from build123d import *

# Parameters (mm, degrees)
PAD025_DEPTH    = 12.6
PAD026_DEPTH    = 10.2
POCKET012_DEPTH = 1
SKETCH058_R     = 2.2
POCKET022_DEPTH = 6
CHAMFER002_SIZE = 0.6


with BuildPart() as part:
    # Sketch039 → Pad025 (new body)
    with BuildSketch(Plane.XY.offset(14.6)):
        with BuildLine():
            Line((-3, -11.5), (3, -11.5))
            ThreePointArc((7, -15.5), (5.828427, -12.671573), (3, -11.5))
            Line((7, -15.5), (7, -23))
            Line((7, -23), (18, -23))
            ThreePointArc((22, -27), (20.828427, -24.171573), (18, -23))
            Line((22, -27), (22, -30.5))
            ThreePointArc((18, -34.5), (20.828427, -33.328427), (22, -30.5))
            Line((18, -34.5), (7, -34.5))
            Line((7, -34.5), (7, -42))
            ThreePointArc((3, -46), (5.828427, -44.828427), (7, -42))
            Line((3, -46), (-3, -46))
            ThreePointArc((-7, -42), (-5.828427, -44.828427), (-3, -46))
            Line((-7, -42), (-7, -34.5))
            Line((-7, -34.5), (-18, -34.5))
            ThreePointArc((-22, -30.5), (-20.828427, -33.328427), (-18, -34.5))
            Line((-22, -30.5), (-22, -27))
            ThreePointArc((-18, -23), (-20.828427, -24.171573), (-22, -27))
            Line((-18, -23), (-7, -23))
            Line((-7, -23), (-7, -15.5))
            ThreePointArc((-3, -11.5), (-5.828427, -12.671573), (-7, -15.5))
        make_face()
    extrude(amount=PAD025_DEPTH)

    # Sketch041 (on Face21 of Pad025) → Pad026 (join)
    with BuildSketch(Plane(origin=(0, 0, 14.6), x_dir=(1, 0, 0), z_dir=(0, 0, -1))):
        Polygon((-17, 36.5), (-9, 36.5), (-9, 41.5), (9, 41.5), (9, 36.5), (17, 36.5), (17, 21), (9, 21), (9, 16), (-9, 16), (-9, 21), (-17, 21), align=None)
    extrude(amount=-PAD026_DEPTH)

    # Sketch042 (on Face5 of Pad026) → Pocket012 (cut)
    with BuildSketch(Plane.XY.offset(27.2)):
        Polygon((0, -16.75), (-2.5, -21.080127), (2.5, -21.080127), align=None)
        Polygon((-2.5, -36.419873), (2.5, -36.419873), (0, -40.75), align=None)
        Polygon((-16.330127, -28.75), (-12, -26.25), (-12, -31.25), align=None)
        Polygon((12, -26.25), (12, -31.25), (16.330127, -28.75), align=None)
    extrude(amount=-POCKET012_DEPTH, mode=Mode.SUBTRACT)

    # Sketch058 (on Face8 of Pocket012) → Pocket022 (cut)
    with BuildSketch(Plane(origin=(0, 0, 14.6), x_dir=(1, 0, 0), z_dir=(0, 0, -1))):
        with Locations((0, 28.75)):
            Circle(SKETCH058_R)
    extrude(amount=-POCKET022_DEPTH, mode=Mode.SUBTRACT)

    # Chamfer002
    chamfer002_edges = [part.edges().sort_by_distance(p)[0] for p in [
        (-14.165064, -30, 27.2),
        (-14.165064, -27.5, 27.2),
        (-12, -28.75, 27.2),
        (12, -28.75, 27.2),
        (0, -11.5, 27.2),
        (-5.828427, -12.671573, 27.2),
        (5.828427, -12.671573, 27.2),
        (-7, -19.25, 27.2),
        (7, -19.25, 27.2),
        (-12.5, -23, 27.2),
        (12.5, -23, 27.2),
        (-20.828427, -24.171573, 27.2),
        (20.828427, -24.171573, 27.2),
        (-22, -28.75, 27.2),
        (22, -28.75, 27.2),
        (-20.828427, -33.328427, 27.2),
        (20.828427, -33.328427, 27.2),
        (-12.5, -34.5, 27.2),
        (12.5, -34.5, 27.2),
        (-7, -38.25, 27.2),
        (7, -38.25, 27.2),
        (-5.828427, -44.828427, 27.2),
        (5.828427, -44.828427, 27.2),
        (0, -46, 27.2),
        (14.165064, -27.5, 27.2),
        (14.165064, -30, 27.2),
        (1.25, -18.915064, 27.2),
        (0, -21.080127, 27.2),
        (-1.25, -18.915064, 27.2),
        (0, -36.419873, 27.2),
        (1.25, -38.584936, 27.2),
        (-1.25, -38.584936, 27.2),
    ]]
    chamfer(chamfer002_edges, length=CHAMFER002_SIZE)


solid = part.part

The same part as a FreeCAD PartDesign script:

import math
import FreeCAD as App
import Part
import Sketcher
from FreeCAD import Vector
Q = App.Units.Quantity


def edges_at(feature, points):
    """Names of the edges that pass closest to the given points."""
    edges = feature.Shape.Edges
    near = lambda p: min(range(len(edges)), key=lambda i: edges[i].distToShape(Part.Vertex(*p))[0])
    return sorted({f"Edge{near(p) + 1}" for p in points})


def add_polygon(sketch, points):
    """Adds a closed chain of lines whose ends are joined by coincident constraints."""
    first, n = sketch.GeometryCount, len(points)
    for a, b in zip(points, points[1:] + points[:1]):
        sketch.addGeometry(Part.LineSegment(App.Vector(*a, 0), App.Vector(*b, 0)), False)
    for i in range(n):
        sketch.addConstraint(Sketcher.Constraint("Coincident", first + i, 2, first + (i + 1) % n, 1))

doc = App.newDocument("Part")
body = doc.addObject("PartDesign::Body", "Body")

# Sketch on XY plane
sketch1 = body.newObject("Sketcher::SketchObject", "Sketch")
sketch1.AttachmentSupport = (doc.getObject("XY_Plane"), [""])
sketch1.MapMode = "FlatFace"
sketch1.AttachmentOffset = App.Placement(Vector(0, 0, 14.6), App.Rotation())
sketch1.addGeometry([
    Part.LineSegment(Vector(3, -11.5, 0), Vector(-3, -11.5, 0)),  # 0
    Part.ArcOfCircle(Part.Circle(Vector(-3, -15.5, 0), Vector(0, 0, 1), 4), math.radians(90), math.radians(180)),  # 1
    Part.LineSegment(Vector(-7, -15.5, 0), Vector(-7, -23, 0)),  # 2
    Part.LineSegment(Vector(-7, -23, 0), Vector(-18, -23, 0)),  # 3
    Part.ArcOfCircle(Part.Circle(Vector(-18, -27, 0), Vector(0, 0, 1), 4), math.radians(90), math.radians(180)),  # 4
    Part.LineSegment(Vector(-22, -27, 0), Vector(-22, -30.5, 0)),  # 5
    Part.ArcOfCircle(Part.Circle(Vector(-18, -30.5, 0), Vector(0, 0, 1), 4), math.radians(-180), math.radians(-90)),  # 6
    Part.LineSegment(Vector(-18, -34.5, 0), Vector(-7, -34.5, 0)),  # 7
    Part.LineSegment(Vector(-7, -34.5, 0), Vector(-7, -42, 0)),  # 8
    Part.ArcOfCircle(Part.Circle(Vector(-3, -42, 0), Vector(0, 0, 1), 4), math.radians(-180), math.radians(-90)),  # 9
    Part.LineSegment(Vector(-3, -46, 0), Vector(3, -46, 0)),  # 10
    Part.ArcOfCircle(Part.Circle(Vector(3, -42, 0), Vector(0, 0, 1), 4), math.radians(-90), math.radians(0)),  # 11
    Part.LineSegment(Vector(7, -42, 0), Vector(7, -34.5, 0)),  # 12
    Part.LineSegment(Vector(7, -34.5, 0), Vector(18, -34.5, 0)),  # 13
    Part.ArcOfCircle(Part.Circle(Vector(18, -30.5, 0), Vector(0, 0, 1), 4), math.radians(-90), math.radians(0)),  # 14
    Part.LineSegment(Vector(22, -30.5, 0), Vector(22, -27, 0)),  # 15
    Part.ArcOfCircle(Part.Circle(Vector(18, -27, 0), Vector(0, 0, 1), 4), math.radians(0), math.radians(90)),  # 16
    Part.LineSegment(Vector(18, -23, 0), Vector(7, -23, 0)),  # 17
    Part.LineSegment(Vector(7, -23, 0), Vector(7, -15.5, 0)),  # 18
    Part.ArcOfCircle(Part.Circle(Vector(3, -15.5, 0), Vector(0, 0, 1), 4), math.radians(0), math.radians(90)),  # 19
], False)
sketch1.addConstraint([
    Sketcher.Constraint("Tangent", 0, 2, 1, 1),
    Sketcher.Constraint("Tangent", 1, 2, 2, 1),
    Sketcher.Constraint("Coincident", 2, 2, 3, 1),
    Sketcher.Constraint("Tangent", 3, 2, 4, 1),
    Sketcher.Constraint("Tangent", 4, 2, 5, 1),
    Sketcher.Constraint("Tangent", 5, 2, 6, 1),
    Sketcher.Constraint("Tangent", 6, 2, 7, 1),
    Sketcher.Constraint("Coincident", 7, 2, 8, 1),
    Sketcher.Constraint("Tangent", 8, 2, 9, 1),
    Sketcher.Constraint("Tangent", 9, 2, 10, 1),
    Sketcher.Constraint("Tangent", 10, 2, 11, 1),
    Sketcher.Constraint("Tangent", 11, 2, 12, 1),
    Sketcher.Constraint("Coincident", 12, 2, 13, 1),
    Sketcher.Constraint("Tangent", 13, 2, 14, 1),
    Sketcher.Constraint("Tangent", 14, 2, 15, 1),
    Sketcher.Constraint("Tangent", 15, 2, 16, 1),
    Sketcher.Constraint("Tangent", 16, 2, 17, 1),
    Sketcher.Constraint("Coincident", 17, 2, 18, 1),
    Sketcher.Constraint("Tangent", 18, 2, 19, 1),
    Sketcher.Constraint("Tangent", 19, 2, 0, 1),
    Sketcher.Constraint("Horizontal", 0),
    Sketcher.Constraint("Vertical", 2),
    Sketcher.Constraint("Horizontal", 3),
    Sketcher.Constraint("Vertical", 5),
    Sketcher.Constraint("Horizontal", 7),
    Sketcher.Constraint("Vertical", 8),
    Sketcher.Constraint("Horizontal", 10),
    Sketcher.Constraint("Vertical", 12),
    Sketcher.Constraint("Horizontal", 13),
    Sketcher.Constraint("Vertical", 15),
    Sketcher.Constraint("Horizontal", 17),
    Sketcher.Constraint("Vertical", 18),
    Sketcher.Constraint("Equal", 1, 4),
    Sketcher.Constraint("Equal", 4, 6),
    Sketcher.Constraint("Equal", 6, 9),
    Sketcher.Constraint("Equal", 9, 11),
    Sketcher.Constraint("Equal", 11, 14),
    Sketcher.Constraint("Equal", 14, 16),
    Sketcher.Constraint("Equal", 16, 19),
    Sketcher.Constraint("Symmetric", 6, 3, 14, 3, -2),
    Sketcher.Constraint("Symmetric", 2, 2, 17, 2, -2),
    Sketcher.Constraint("Vertical", 1, 3, 9, 3),
    Sketcher.Constraint("Vertical", 11, 3, 19, 3),
    Sketcher.Constraint("Equal", 2, 8),
    Sketcher.Constraint("Radius", 1, Q("4 mm")),
    Sketcher.Constraint("DistanceX", 0, 2, 0, 1, Q("6 mm")),
    Sketcher.Constraint("DistanceX", 3, 2, 3, 1, Q("11 mm")),
    Sketcher.Constraint("DistanceY", 2, 2, 2, 1, Q("7.5 mm")),
    Sketcher.Constraint("DistanceY", 5, 2, 5, 1, Q("3.5 mm")),
    Sketcher.Constraint("DistanceY", 4, 3, -1, 1, Q("27 mm")),
])
pad1 = body.newObject("PartDesign::Pad", "Pad")
pad1.Profile = sketch1
pad1.Length = 12.6

# Sketch on XY plane
sketch2 = body.newObject("Sketcher::SketchObject", "Sketch001")
sketch2.AttachmentSupport = (doc.getObject("XY_Plane"), [""])
sketch2.MapMode = "FlatFace"
sketch2.AttachmentOffset = App.Placement(Vector(0, 0, 14.6), App.Rotation())
add_polygon(sketch2, [(-9, -36), (-17, -36), (-17, -21), (-9, -21), (-9, -16), (9, -16), (9, -21), (17, -21), (17, -36), (9, -36), (9, -42), (-9, -42)])  # lines 0-11
sketch2.addConstraint([
    Sketcher.Constraint("Horizontal", 0),
    Sketcher.Constraint("Vertical", 1),
    Sketcher.Constraint("Horizontal", 2),
    Sketcher.Constraint("Vertical", 3),
    Sketcher.Constraint("Horizontal", 4),
    Sketcher.Constraint("Vertical", 5),
    Sketcher.Constraint("Horizontal", 6),
    Sketcher.Constraint("Vertical", 7),
    Sketcher.Constraint("Horizontal", 8),
    Sketcher.Constraint("Vertical", 9),
    Sketcher.Constraint("Horizontal", 10),
    Sketcher.Constraint("Vertical", 11),
    Sketcher.Constraint("Symmetric", 2, 2, 5, 2, -2),
    Sketcher.Constraint("Symmetric", 0, 2, 7, 2, -2),
    Sketcher.Constraint("Vertical", 5, 2, 8, 2),
    Sketcher.Constraint("Vertical", 3, 2, 10, 2),
    Sketcher.Constraint("Equal", 5, 9),
    Sketcher.Constraint("DistanceX", 0, 2, 0, 1, Q("8 mm")),
    Sketcher.Constraint("DistanceX", 4, 1, 4, 2, Q("18 mm")),
    Sketcher.Constraint("DistanceY", 3, 1, 3, 2, Q("5 mm")),
    Sketcher.Constraint("DistanceY", 1, 1, 1, 2, Q("15.5 mm")),
    Sketcher.Constraint("DistanceY", 1, 2, -1, 1, Q("21 mm")),
])
pad2 = body.newObject("PartDesign::Pad", "Pad001")
pad2.Profile = sketch2
pad2.Length = 10.2

# Sketch on XY plane
sketch3 = body.newObject("Sketcher::SketchObject", "Sketch002")
sketch3.AttachmentSupport = (doc.getObject("XY_Plane"), [""])
sketch3.MapMode = "FlatFace"
sketch3.AttachmentOffset = App.Placement(Vector(0, 0, 27.2), App.Rotation())
add_polygon(sketch3, [(0, -16.8), (-2.5, -21.1), (2.5, -21.1)])  # lines 0-2
add_polygon(sketch3, [(2.5, -36.4), (-2.5, -36.4), (0, -40.8)])  # lines 3-5
add_polygon(sketch3, [(-12, -26.2), (-16.3, -28.8), (-12, -31.2)])  # lines 6-8
add_polygon(sketch3, [(12, -26.2), (12, -31.2), (16.3, -28.8)])  # lines 9-11
sketch3.addConstraint([
    Sketcher.Constraint("Horizontal", 1),
    Sketcher.Constraint("Horizontal", 3),
    Sketcher.Constraint("Vertical", 8),
    Sketcher.Constraint("Vertical", 9),
    Sketcher.Constraint("Symmetric", 7, 2, 9, 2, -2),
    Sketcher.Constraint("Symmetric", 6, 2, 10, 2, -2),
    Sketcher.Constraint("PointOnObject", 2, 2, -2),
    Sketcher.Constraint("PointOnObject", 4, 2, -2),
    Sketcher.Constraint("Parallel", 2, 4),
    Sketcher.Constraint("Parallel", 0, 5),
    Sketcher.Constraint("Perpendicular", 4, 6),
    Sketcher.Constraint("Perpendicular", 5, 7),
    Sketcher.Constraint("Parallel", 6, 10),
    Sketcher.Constraint("Parallel", 7, 11),
    Sketcher.Constraint("Vertical", 0, 2, 3, 2),
    Sketcher.Constraint("Equal", 3, 8),
    Sketcher.Constraint("DistanceX", 1, 1, 1, 2, Q("5 mm")),
    Sketcher.Constraint("Angle", 0, Q("-120 deg")),
    Sketcher.Constraint("DistanceX", 7, 2, -1, 1, Q("12 mm")),
    Sketcher.Constraint("DistanceY", 4, 2, 2, 2, Q("24 mm")),
    Sketcher.Constraint("DistanceY", 6, 2, 2, 2, Q("12 mm")),
    Sketcher.Constraint("DistanceY", 2, 2, -1, 1, Q("16.75 mm")),
])
pocket1 = body.newObject("PartDesign::Pocket", "Pocket")
pocket1.Profile = sketch3
pocket1.Length = 1

# Sketch on XY plane
sketch4 = body.newObject("Sketcher::SketchObject", "Sketch003")
sketch4.AttachmentSupport = (doc.getObject("XY_Plane"), [""])
sketch4.MapMode = "FlatFace"
sketch4.AttachmentOffset = App.Placement(Vector(0, 0, 14.6), App.Rotation())
sketch4.addGeometry(Part.Circle(Vector(0, -28.8, 0), Vector(0, 0, 1), 2.2), False)
sketch4.addConstraint([
    Sketcher.Constraint("PointOnObject", 0, 3, -2),
    Sketcher.Constraint("Diameter", 0, Q("4.4 mm")),
    Sketcher.Constraint("DistanceY", 0, 3, -1, 1, Q("28.75 mm")),
])
pocket2 = body.newObject("PartDesign::Pocket", "Pocket001")
pocket2.Profile = sketch4
pocket2.Length = 6
pocket2.Reversed = True
doc.recompute()

chamfer = body.newObject("PartDesign::Chamfer", "Chamfer")
chamfer.Base = (pocket2, edges_at(pocket2, [
    (-14.165, -30, 27.2),
    (-14.165, -27.5, 27.2),
    (-12, -28.75, 27.2),
    (12, -28.75, 27.2),
    (0, -11.5, 27.2),
    (-5.828, -12.672, 27.2),
    (5.828, -12.672, 27.2),
    (-7, -19.25, 27.2),
    (7, -19.25, 27.2),
    (-12.5, -23, 27.2),
    (12.5, -23, 27.2),
    (-20.828, -24.172, 27.2),
    (20.828, -24.172, 27.2),
    (-22, -28.75, 27.2),
    (22, -28.75, 27.2),
    (-20.828, -33.328, 27.2),
    (20.828, -33.328, 27.2),
    (-12.5, -34.5, 27.2),
    (12.5, -34.5, 27.2),
    (-7, -38.25, 27.2),
    (7, -38.25, 27.2),
    (-5.828, -44.828, 27.2),
    (5.828, -44.828, 27.2),
    (0, -46, 27.2),
    (14.165, -27.5, 27.2),
    (14.165, -30, 27.2),
    (1.25, -18.915, 27.2),
    (0, -21.08, 27.2),
    (-1.25, -18.915, 27.2),
    (0, -36.42, 27.2),
    (1.25, -38.585, 27.2),
    (-1.25, -38.585, 27.2),
]))
chamfer.Size = 0.6

doc.recompute()
